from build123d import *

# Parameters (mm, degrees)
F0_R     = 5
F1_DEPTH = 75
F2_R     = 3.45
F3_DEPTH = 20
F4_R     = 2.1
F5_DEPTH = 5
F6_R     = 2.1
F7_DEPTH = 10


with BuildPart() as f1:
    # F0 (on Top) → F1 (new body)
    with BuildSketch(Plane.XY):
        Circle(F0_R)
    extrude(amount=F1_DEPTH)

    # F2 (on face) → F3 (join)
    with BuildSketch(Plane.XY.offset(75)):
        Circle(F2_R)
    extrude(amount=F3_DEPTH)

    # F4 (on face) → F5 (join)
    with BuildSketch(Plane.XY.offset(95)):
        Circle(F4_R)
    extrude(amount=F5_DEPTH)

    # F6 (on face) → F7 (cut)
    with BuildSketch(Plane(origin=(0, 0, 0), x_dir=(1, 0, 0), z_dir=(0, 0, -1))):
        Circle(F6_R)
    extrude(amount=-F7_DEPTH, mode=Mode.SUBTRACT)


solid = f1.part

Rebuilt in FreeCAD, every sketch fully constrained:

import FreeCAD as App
import Part
import Sketcher
from FreeCAD import Vector
Q = App.Units.Quantity

doc = App.newDocument("Part")
params = doc.addObject("Spreadsheet::Sheet", "Params")
for row, (alias, value) in enumerate([
    ("sketch1_diameter", "10 mm"),
    ("pad1_length", "75 mm"),
    ("sketch2_diameter", "6.9 mm"),
    ("pad2_length", "20 mm"),
    ("sketch3_diameter", "4.2 mm"),
    ("pad3_length", "5 mm"),
    ("sketch4_diameter", "4.2 mm"),
    ("pocket1_length", "10 mm"),
], start=1):
    params.set(f"A{row}", alias)
    params.set(f"B{row}", "=" + value)
    params.setAlias(f"B{row}", alias)

body = doc.addObject("PartDesign::Body", "Body")

# Sketch on XY plane
sketch1 = body.newObject("Sketcher::SketchObject", "Sketch")
sketch1.AttachmentSupport = (doc.getObject("XY_Plane"), [""])
sketch1.MapMode = "FlatFace"
sketch1.addGeometry(Part.Circle(Vector(0, 0, 0), Vector(0, 0, 1), 5), False)
sketch1.addConstraint([
    Sketcher.Constraint("Coincident", 0, 3, -1, 1),
    Sketcher.Constraint("Diameter", 0, Q("10 mm")),
])
sketch1.setExpression("Constraints[1]", "Params.sketch1_diameter")
pad1 = body.newObject("PartDesign::Pad", "Pad")
pad1.Profile = sketch1
pad1.setExpression("Length", "Params.pad1_length")

# Sketch on XY plane
sketch2 = body.newObject("Sketcher::SketchObject", "Sketch001")
sketch2.AttachmentSupport = (doc.getObject("XY_Plane"), [""])
sketch2.MapMode = "FlatFace"
sketch2.AttachmentOffset = App.Placement(Vector(0, 0, 75), App.Rotation())
sketch2.addGeometry(Part.Circle(Vector(0, 0, 0), Vector(0, 0, 1), 3.5), False)
sketch2.addConstraint([
    Sketcher.Constraint("Coincident", 0, 3, -1, 1),
    Sketcher.Constraint("Diameter", 0, Q("6.9 mm")),
])
sketch2.setExpression("Constraints[1]", "Params.sketch2_diameter")
pad2 = body.newObject("PartDesign::Pad", "Pad001")
pad2.Profile = sketch2
pad2.setExpression("Length", "Params.pad2_length")

# Sketch on XY plane
sketch3 = body.newObject("Sketcher::SketchObject", "Sketch002")
sketch3.AttachmentSupport = (doc.getObject("XY_Plane"), [""])
sketch3.MapMode = "FlatFace"
sketch3.AttachmentOffset = App.Placement(Vector(0, 0, 95), App.Rotation())
sketch3.addGeometry(Part.Circle(Vector(0, 0, 0), Vector(0, 0, 1), 2.1), False)
sketch3.addConstraint([
    Sketcher.Constraint("Coincident", 0, 3, -1, 1),
    Sketcher.Constraint("Diameter", 0, Q("4.2 mm")),
])
sketch3.setExpression("Constraints[1]", "Params.sketch3_diameter")
pad3 = body.newObject("PartDesign::Pad", "Pad002")
pad3.Profile = sketch3
pad3.setExpression("Length", "Params.pad3_length")

# Sketch on XY plane
sketch4 = body.newObject("Sketcher::SketchObject", "Sketch003")
sketch4.AttachmentSupport = (doc.getObject("XY_Plane"), [""])
sketch4.MapMode = "FlatFace"
sketch4.addGeometry(Part.Circle(Vector(0, 0, 0), Vector(0, 0, 1), 2.1), False)
sketch4.addConstraint([
    Sketcher.Constraint("Coincident", 0, 3, -1, 1),
    Sketcher.Constraint("Diameter", 0, Q("4.2 mm")),
])
sketch4.setExpression("Constraints[1]", "Params.sketch4_diameter")
pocket1 = body.newObject("PartDesign::Pocket", "Pocket")
pocket1.Profile = sketch4
pocket1.setExpression("Length", "Params.pocket1_length")
pocket1.Reversed = True

doc.recompute()
